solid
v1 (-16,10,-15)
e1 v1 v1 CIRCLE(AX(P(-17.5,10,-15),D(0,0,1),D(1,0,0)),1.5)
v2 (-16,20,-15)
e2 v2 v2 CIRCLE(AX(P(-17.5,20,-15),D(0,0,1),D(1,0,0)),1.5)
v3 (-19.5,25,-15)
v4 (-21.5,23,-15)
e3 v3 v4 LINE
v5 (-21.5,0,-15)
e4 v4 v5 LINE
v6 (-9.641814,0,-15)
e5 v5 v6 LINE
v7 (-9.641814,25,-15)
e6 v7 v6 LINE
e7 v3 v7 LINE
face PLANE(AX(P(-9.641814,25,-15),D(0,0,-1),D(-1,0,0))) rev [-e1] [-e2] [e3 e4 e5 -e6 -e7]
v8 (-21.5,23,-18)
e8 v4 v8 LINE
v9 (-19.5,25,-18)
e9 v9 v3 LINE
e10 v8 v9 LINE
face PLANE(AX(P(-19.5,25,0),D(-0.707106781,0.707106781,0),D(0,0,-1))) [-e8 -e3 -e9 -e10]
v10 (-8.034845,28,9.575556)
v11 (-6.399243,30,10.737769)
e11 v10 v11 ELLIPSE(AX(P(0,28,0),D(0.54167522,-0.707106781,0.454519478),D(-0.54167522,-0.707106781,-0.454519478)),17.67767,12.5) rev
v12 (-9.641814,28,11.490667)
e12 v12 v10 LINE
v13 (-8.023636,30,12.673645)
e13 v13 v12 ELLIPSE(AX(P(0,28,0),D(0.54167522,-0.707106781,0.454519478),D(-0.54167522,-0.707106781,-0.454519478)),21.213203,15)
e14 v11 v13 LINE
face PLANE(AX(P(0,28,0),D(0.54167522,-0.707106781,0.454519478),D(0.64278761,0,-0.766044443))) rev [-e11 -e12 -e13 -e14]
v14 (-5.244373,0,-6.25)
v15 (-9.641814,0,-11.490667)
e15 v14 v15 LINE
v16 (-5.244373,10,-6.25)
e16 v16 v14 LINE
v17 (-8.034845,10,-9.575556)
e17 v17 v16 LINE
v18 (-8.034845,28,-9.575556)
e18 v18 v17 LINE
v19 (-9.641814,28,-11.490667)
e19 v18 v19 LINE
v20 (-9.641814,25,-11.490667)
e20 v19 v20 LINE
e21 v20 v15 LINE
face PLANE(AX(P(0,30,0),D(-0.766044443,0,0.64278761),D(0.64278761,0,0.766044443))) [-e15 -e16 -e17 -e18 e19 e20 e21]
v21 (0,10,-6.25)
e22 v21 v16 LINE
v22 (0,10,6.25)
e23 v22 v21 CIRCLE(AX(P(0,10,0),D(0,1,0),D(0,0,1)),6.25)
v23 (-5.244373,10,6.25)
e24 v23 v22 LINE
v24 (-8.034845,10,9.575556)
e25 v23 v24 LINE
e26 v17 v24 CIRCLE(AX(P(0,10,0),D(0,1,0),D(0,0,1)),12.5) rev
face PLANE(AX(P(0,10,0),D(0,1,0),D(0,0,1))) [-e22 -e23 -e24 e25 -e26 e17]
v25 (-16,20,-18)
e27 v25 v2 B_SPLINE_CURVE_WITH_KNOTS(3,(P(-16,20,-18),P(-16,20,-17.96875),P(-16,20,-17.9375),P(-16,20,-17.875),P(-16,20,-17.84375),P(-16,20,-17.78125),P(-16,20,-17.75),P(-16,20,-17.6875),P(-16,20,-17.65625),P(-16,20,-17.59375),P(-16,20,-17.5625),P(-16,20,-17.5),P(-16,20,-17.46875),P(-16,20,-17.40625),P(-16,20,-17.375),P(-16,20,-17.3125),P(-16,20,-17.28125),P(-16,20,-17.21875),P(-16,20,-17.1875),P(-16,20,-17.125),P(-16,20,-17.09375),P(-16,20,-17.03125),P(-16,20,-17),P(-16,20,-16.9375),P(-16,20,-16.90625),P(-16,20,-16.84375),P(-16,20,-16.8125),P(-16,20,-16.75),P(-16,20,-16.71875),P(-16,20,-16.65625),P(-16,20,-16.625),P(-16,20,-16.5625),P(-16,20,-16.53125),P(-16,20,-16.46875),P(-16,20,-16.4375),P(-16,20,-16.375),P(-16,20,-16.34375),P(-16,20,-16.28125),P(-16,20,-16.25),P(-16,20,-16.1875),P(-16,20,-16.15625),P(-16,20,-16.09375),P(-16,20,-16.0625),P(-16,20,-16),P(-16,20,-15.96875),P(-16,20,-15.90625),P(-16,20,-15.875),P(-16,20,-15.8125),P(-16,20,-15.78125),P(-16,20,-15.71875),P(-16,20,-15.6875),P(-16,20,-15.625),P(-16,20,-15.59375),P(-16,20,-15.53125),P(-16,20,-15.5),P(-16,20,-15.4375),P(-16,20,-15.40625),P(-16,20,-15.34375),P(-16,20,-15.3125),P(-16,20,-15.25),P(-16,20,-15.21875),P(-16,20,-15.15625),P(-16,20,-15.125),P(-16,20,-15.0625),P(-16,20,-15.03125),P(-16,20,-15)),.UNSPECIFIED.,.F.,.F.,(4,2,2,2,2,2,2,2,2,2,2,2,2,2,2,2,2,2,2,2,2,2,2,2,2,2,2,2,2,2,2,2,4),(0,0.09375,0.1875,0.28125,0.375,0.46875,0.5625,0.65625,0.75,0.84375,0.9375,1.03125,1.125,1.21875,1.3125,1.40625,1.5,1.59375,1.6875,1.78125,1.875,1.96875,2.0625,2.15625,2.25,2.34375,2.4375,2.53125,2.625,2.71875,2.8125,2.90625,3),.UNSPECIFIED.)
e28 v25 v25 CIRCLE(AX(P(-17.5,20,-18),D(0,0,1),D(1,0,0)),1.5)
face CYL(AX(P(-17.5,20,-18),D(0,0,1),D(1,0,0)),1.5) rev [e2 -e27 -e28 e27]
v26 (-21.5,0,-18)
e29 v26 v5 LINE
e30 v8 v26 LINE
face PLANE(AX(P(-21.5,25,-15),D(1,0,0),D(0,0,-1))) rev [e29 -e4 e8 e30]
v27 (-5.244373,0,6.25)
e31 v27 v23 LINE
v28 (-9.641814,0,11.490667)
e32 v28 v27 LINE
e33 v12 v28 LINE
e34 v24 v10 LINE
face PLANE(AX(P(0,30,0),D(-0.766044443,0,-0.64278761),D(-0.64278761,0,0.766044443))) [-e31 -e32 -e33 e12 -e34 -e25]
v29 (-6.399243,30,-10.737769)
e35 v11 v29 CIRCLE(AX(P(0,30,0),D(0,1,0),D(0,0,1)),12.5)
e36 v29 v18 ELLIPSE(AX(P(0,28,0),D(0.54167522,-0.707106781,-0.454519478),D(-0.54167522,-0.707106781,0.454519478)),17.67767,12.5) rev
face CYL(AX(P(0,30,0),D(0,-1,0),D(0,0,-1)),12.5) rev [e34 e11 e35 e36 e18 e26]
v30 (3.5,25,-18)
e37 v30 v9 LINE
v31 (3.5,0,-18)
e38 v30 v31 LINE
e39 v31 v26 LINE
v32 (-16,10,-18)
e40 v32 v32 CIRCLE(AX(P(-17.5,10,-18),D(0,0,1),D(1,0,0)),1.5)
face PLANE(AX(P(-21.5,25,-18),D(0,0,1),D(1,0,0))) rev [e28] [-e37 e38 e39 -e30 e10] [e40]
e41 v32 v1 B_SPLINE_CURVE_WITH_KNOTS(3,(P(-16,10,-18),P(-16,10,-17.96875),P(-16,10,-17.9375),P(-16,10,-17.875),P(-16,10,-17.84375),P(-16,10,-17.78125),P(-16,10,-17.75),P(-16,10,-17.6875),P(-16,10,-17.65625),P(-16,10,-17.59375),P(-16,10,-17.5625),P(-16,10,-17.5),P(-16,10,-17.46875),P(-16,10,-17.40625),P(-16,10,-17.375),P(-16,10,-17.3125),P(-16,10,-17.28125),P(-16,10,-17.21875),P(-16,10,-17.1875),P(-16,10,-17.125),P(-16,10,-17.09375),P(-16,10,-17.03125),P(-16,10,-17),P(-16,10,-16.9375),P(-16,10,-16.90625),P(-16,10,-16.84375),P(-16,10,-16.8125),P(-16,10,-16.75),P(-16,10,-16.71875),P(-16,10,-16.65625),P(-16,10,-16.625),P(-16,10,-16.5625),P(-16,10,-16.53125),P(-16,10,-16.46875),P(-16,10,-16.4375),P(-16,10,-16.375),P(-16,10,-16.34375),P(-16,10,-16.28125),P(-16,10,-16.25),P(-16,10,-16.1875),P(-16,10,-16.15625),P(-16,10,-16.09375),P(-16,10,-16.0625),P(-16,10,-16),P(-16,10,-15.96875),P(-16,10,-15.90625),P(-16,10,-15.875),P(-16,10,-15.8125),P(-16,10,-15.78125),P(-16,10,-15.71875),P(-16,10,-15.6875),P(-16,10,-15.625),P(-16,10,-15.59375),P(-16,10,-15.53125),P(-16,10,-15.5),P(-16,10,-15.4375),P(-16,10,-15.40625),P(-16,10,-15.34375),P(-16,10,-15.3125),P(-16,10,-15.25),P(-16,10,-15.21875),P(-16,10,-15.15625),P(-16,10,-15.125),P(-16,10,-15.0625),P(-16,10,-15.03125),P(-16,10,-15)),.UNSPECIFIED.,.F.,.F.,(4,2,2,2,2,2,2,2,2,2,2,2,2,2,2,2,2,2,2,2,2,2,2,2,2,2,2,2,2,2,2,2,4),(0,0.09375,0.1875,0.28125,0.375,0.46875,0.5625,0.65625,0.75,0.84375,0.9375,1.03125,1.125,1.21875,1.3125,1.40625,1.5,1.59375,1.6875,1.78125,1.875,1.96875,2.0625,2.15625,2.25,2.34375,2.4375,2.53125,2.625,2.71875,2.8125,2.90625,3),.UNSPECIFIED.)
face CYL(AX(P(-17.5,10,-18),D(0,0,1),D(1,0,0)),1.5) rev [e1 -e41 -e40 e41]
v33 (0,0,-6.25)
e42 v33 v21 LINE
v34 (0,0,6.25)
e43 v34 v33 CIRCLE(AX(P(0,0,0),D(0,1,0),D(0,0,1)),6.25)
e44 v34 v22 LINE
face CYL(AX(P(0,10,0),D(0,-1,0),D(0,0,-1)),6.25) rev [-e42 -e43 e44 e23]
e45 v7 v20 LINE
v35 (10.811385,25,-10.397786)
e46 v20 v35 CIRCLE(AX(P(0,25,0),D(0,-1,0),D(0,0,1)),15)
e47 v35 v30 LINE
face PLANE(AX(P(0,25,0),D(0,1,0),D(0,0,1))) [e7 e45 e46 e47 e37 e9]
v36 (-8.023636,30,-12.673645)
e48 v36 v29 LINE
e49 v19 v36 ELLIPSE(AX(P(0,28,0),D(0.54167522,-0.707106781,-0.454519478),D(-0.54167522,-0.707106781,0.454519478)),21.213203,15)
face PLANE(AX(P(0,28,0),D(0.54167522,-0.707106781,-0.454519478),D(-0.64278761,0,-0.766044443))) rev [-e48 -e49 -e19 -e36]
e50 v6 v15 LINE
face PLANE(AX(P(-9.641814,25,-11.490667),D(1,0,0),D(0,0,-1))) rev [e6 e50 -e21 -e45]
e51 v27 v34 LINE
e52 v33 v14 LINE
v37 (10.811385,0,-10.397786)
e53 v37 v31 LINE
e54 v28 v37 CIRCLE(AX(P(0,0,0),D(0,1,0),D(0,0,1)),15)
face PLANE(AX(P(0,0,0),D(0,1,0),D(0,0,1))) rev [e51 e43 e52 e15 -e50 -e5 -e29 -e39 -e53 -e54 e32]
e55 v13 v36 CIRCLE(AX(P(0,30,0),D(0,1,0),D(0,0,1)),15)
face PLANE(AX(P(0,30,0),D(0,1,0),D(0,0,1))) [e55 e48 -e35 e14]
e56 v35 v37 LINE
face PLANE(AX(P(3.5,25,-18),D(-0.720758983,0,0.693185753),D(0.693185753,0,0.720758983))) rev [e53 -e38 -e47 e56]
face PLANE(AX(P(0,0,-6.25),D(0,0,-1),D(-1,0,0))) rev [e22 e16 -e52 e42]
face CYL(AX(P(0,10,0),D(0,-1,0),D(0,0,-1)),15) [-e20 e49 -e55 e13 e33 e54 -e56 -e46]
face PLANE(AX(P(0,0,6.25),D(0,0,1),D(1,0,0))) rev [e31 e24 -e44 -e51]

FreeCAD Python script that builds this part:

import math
import FreeCAD as App
import Part
import Sketcher
Q = App.Units.Quantity


def edges_at(feature, points):
    """Names of the edges that pass closest to the given points."""
    edges = feature.Shape.Edges
    near = lambda p: min(range(len(edges)), key=lambda i: edges[i].distToShape(Part.Vertex(*p))[0])
    return sorted({f"Edge{near(p) + 1}" for p in points})

doc = App.newDocument("Part")
body = doc.addObject("PartDesign::Body", "Body")

# Sketch on XZ plane
sketch1 = doc.addObject("Sketcher::SketchObject", "Sketch")
body.addObject(sketch1)
sketch1.AttachmentSupport = (doc.XZ_Plane, [""])
sketch1.MapMode = "FlatFace"
sketch1.addGeometry([
    Part.Circle(App.Vector(0, 0, 0), App.Vector(0, 0, 1), 15),
    Part.Circle(App.Vector(0, 0, 0), App.Vector(0, 0, 1), 6),
], False)
sketch1.addConstraint([
    Sketcher.Constraint("Coincident", 0, 3, -1, 1),
    Sketcher.Constraint("Coincident", 1, 3, -1, 1),
    Sketcher.Constraint("Diameter", 0, Q("30 mm")),
    Sketcher.Constraint("Diameter", 1, Q("12.5 mm")),
])
pad1 = doc.addObject("PartDesign::Pad", "Pad")
body.addObject(pad1)
pad1.Profile = sketch1
pad1.Length = 10
pad1.Reversed = True

# Sketch on XZ plane
sketch2 = doc.addObject("Sketcher::SketchObject", "Sketch001")
body.addObject(sketch2)
sketch2.AttachmentSupport = (doc.XZ_Plane, [""])
sketch2.MapMode = "FlatFace"
sketch2.AttachmentOffset = App.Placement(App.Vector(0, 0, -10), App.Rotation())
sketch2.addGeometry([
    Part.Circle(App.Vector(0, 0, 0), App.Vector(0, 0, 1), 15),
    Part.Circle(App.Vector(0, 0, 0), App.Vector(0, 0, 1), 12),
], False)
sketch2.addConstraint([
    Sketcher.Constraint("Coincident", 0, 3, -1, 1),
    Sketcher.Constraint("Coincident", 1, 3, -1, 1),
    Sketcher.Constraint("Diameter", 0, Q("30 mm")),
    Sketcher.Constraint("Diameter", 1, Q("25 mm")),
])
pad2 = doc.addObject("PartDesign::Pad", "Pad001")
body.addObject(pad2)
pad2.Profile = sketch2
pad2.Length = 20
pad2.Reversed = True

# Sketch on XZ plane
sketch3 = doc.addObject("Sketcher::SketchObject", "Sketch002")
body.addObject(sketch3)
sketch3.AttachmentSupport = (doc.XZ_Plane, [""])
sketch3.MapMode = "FlatFace"
sketch3.addGeometry([
    Part.LineSegment(App.Vector(0, 0, 0), App.Vector(-10, -11, 0)),
    Part.ArcOfCircle(Part.Circle(App.Vector(0, 0, 0), App.Vector(0, 0, 1), 15), math.radians(130), math.radians(230)),
    Part.LineSegment(App.Vector(-10, 11, 0), App.Vector(0, 0, 0)),
], False)
sketch3.addConstraint([
    Sketcher.Constraint("Coincident", 0, 2, 1, 2),
    Sketcher.Constraint("Coincident", 1, 1, 2, 1),
    Sketcher.Constraint("Coincident", 2, 2, 0, 1),
    Sketcher.Constraint("Coincident", 1, 3, -1, 1),
    Sketcher.Constraint("Coincident", 2, 2, -1, 1),
    Sketcher.Constraint("Vertical", 0, 2, 1, 1),
    Sketcher.Constraint("Radius", 1, Q("15 mm")),
    Sketcher.Constraint("Angle", 0, Q("-130 deg")),
])
pocket1 = doc.addObject("PartDesign::Pocket", "Pocket")
body.addObject(pocket1)
pocket1.Profile = sketch3
pocket1.Type = "ThroughAll"

# Sketch on XZ plane
sketch4 = doc.addObject("Sketcher::SketchObject", "Sketch003")
body.addObject(sketch4)
sketch4.AttachmentSupport = (doc.XZ_Plane, [""])
sketch4.MapMode = "FlatFace"
sketch4.addGeometry([
    Part.LineSegment(App.Vector(-9.6, -15, 0), App.Vector(-9.6, -11.5, 0)),  # 0
    Part.ArcOfCircle(Part.Circle(App.Vector(0, 0, 0), App.Vector(0, 0, 1), 15), math.radians(-130), math.radians(-44)),  # 1
    Part.LineSegment(App.Vector(10.8, -10.4, 0), App.Vector(3.5, -18, 0)),  # 2
    Part.LineSegment(App.Vector(3.5, -18, 0), App.Vector(-21.5, -18, 0)),  # 3
    Part.LineSegment(App.Vector(-21.5, -18, 0), App.Vector(-21.5, -15, 0)),  # 4
    Part.LineSegment(App.Vector(-21.5, -15, 0), App.Vector(-9.6, -15, 0)),  # 5
], False)
sketch4.addConstraint([
    Sketcher.Constraint("Coincident", 0, 2, 1, 1),
    Sketcher.Constraint("Tangent", 1, 2, 2, 1),
    Sketcher.Constraint("Coincident", 2, 2, 3, 1),
    Sketcher.Constraint("Coincident", 3, 2, 4, 1),
    Sketcher.Constraint("Coincident", 4, 2, 5, 1),
    Sketcher.Constraint("Coincident", 5, 2, 0, 1),
    Sketcher.Constraint("Vertical", 0),
    Sketcher.Constraint("Horizontal", 3),
    Sketcher.Constraint("Vertical", 4),
    Sketcher.Constraint("Horizontal", 5),
    Sketcher.Constraint("Coincident", 1, 3, -1, 1),
    Sketcher.Constraint("Radius", 1, Q("15 mm")),
    Sketcher.Constraint("DistanceX", 3, 2, 3, 1, Q("25 mm")),
    Sketcher.Constraint("DistanceY", 4, 1, 4, 2, Q("3 mm")),
    Sketcher.Constraint("DistanceY", 2, 2, -1, 1, Q("18 mm")),
    Sketcher.Constraint("DistanceX", -1, 1, 2, 2, Q("3.5 mm")),
    Sketcher.Constraint("DistanceX", 0, 2, 1, 2, Q("20.453199 mm")),
])
pad3 = doc.addObject("PartDesign::Pad", "Pad002")
body.addObject(pad3)
pad3.Profile = sketch4
pad3.Length = 25
pad3.Reversed = True

# Sketch on XY plane
sketch5 = doc.addObject("Sketcher::SketchObject", "Sketch004")
body.addObject(sketch5)
sketch5.AttachmentSupport = (doc.XY_Plane, [""])
sketch5.MapMode = "FlatFace"
sketch5.AttachmentOffset = App.Placement(App.Vector(0, 0, -15), App.Rotation())
sketch5.addGeometry([
    Part.Circle(App.Vector(-17.5, 20, 0), App.Vector(0, 0, 1), 1.5),
    Part.Circle(App.Vector(-17.5, 10, 0), App.Vector(0, 0, 1), 1.5),
], False)
sketch5.addConstraint([
    Sketcher.Constraint("Equal", 0, 1),
    Sketcher.Constraint("Vertical", 0, 3, 1, 3),
    Sketcher.Constraint("Diameter", 0, Q("3 mm")),
    Sketcher.Constraint("DistanceY", -1, 1, 0, 3, Q("20 mm")),
    Sketcher.Constraint("DistanceY", -1, 1, 1, 3, Q("10 mm")),
    Sketcher.Constraint("DistanceX", 0, 3, -1, 1, Q("17.5 mm")),
])
pocket2 = doc.addObject("PartDesign::Pocket", "Pocket001")
body.addObject(pocket2)
pocket2.Profile = sketch5
pocket2.Type = "ThroughAll"

# Sketch on XZ plane
sketch6 = doc.addObject("Sketcher::SketchObject", "Sketch005")
body.addObject(sketch6)
sketch6.AttachmentSupport = (doc.XZ_Plane, [""])
sketch6.MapMode = "FlatFace"
sketch6.AttachmentOffset = App.Placement(App.Vector(0, 0, -10), App.Rotation())
sketch6.addGeometry([
    Part.LineSegment(App.Vector(-12, 6, 0), App.Vector(0, 6, 0)),
    Part.ArcOfCircle(Part.Circle(App.Vector(0, 0, 0), App.Vector(0, 0, 1), 6), math.radians(-90), math.radians(90)),
    Part.LineSegment(App.Vector(0, -6, 0), App.Vector(-12, -6, 0)),
    Part.ArcOfCircle(Part.Circle(App.Vector(-12, 0, 0), App.Vector(0, 0, 1), 6), math.radians(90), math.radians(270)),
], False)
sketch6.addConstraint([
    Sketcher.Constraint("Tangent", 0, 2, 1, 2),
    Sketcher.Constraint("Tangent", 1, 1, 2, 1),
    Sketcher.Constraint("Tangent", 2, 2, 3, 2),
    Sketcher.Constraint("Tangent", 3, 1, 0, 1),
    Sketcher.Constraint("Horizontal", 0),
    Sketcher.Constraint("Horizontal", 2),
    Sketcher.Constraint("Coincident", 1, 3, -1, 1),
    Sketcher.Constraint("Radius", 1, Q("6.25 mm")),
    Sketcher.Constraint("DistanceX", 0, 1, 0, 2, Q("12.5 mm")),
])
pocket3 = doc.addObject("PartDesign::Pocket", "Pocket002")
body.addObject(pocket3)
pocket3.Profile = sketch6
pocket3.Type = "ThroughAll"
pocket3.Reversed = True
doc.recompute()

chamfer = doc.addObject("PartDesign::Chamfer", "Chamfer")
body.addObject(chamfer)
chamfer.Base = (pocket3, edges_at(pocket3, [(-8.838, 30, -10.533), (-8.838, 30, 10.533), (-21.5, 25, -16.5)]))
chamfer.Size = 2

doc.recompute()
